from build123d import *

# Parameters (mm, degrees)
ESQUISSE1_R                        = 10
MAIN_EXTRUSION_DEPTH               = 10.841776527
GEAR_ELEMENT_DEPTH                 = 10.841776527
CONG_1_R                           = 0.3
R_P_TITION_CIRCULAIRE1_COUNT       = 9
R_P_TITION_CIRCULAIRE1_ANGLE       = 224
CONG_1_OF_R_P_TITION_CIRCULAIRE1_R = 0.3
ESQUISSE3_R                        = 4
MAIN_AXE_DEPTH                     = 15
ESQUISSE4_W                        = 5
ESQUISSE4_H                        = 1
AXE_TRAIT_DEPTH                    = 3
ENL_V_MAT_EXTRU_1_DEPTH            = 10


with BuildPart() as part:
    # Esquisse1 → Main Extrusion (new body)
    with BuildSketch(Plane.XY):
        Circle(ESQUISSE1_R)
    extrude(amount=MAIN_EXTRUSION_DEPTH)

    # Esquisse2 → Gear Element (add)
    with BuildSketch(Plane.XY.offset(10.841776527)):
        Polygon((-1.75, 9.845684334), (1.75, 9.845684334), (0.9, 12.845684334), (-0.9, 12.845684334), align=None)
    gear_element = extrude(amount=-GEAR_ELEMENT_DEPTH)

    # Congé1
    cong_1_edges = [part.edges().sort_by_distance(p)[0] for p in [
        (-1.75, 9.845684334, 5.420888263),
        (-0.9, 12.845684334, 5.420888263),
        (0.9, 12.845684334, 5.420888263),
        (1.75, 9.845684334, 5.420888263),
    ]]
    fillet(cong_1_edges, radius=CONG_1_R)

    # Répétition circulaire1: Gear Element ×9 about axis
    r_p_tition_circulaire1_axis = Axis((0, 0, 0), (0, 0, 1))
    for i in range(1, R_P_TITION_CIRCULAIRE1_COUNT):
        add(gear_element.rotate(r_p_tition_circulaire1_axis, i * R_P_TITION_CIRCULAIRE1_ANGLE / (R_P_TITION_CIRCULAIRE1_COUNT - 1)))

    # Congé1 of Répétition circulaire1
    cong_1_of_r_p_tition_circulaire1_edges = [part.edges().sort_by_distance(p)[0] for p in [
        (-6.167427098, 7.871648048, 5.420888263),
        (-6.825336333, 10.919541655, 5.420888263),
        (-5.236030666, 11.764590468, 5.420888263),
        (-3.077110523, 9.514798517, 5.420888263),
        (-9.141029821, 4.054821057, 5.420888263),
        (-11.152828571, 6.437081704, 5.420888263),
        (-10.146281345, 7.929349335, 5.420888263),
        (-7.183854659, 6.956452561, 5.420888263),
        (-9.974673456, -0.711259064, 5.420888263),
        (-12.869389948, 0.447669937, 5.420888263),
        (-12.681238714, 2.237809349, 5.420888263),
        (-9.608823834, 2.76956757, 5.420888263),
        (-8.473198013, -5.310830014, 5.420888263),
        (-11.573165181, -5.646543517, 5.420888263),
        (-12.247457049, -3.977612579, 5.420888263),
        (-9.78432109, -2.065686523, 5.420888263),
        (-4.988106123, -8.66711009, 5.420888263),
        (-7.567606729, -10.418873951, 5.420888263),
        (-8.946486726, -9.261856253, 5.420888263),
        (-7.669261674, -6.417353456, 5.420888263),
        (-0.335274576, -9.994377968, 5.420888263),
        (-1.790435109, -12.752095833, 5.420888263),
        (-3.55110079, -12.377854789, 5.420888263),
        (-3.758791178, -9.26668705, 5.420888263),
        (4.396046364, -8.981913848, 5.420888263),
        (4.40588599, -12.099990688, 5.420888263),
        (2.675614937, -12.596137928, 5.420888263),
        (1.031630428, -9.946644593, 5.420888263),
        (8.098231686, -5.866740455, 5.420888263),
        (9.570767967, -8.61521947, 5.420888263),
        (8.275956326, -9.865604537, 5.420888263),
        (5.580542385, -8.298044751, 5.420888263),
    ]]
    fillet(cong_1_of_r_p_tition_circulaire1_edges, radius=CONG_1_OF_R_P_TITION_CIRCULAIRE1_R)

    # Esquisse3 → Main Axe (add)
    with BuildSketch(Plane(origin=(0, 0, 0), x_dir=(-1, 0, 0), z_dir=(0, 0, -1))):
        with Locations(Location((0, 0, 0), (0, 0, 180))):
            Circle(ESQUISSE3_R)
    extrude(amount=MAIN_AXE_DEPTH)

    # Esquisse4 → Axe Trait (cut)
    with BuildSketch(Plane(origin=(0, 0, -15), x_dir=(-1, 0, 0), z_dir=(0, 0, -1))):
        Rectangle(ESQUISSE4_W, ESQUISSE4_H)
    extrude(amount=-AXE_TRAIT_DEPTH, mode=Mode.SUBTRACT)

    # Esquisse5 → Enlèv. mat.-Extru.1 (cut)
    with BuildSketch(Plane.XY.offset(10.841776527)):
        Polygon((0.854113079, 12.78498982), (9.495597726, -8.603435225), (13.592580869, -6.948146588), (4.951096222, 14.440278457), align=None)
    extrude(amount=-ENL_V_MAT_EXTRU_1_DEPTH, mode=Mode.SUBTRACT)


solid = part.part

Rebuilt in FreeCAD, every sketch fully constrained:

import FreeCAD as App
import Part
import Sketcher
Q = App.Units.Quantity


def edges_at(feature, points):
    """Names of the edges that pass closest to the given points."""
    edges = feature.Shape.Edges
    near = lambda p: min(range(len(edges)), key=lambda i: edges[i].distToShape(Part.Vertex(*p))[0])
    return sorted({f"Edge{near(p) + 1}" for p in points})


def add_polygon(sketch, points):
    """Adds a closed chain of lines whose ends are joined by coincident constraints."""
    first, n = sketch.GeometryCount, len(points)
    for a, b in zip(points, points[1:] + points[:1]):
        sketch.addGeometry(Part.LineSegment(App.Vector(*a, 0), App.Vector(*b, 0)), False)
    for i in range(n):
        sketch.addConstraint(Sketcher.Constraint("Coincident", first + i, 2, first + (i + 1) % n, 1))

doc = App.newDocument("Part")
body = doc.addObject("PartDesign::Body", "Body")

# Sketch on XY plane
sketch1 = body.newObject("Sketcher::SketchObject", "Sketch")
sketch1.AttachmentSupport = (doc.getObject("XY_Plane"), [""])
sketch1.MapMode = "FlatFace"
sketch1.addGeometry(Part.Circle(App.Vector(0, 0, 0), App.Vector(0, 0, 1), 10), False)
sketch1.addConstraint([
    Sketcher.Constraint("Coincident", 0, 3, -1, 1),
    Sketcher.Constraint("Diameter", 0, Q("20 mm")),
])
pad1 = body.newObject("PartDesign::Pad", "Pad")
pad1.Profile = sketch1
pad1.Length = 10.841777

# Sketch on XY plane
sketch2 = body.newObject("Sketcher::SketchObject", "Sketch001")
sketch2.AttachmentSupport = (doc.getObject("XY_Plane"), [""])
sketch2.MapMode = "FlatFace"
sketch2.AttachmentOffset = App.Placement(App.Vector(0, 0, 10.841777), App.Rotation())
add_polygon(sketch2, [(-1.8, 9.8), (1.8, 9.8), (0.9, 12.8), (-0.9, 12.8)])  # lines 0-3
sketch2.addConstraint([
    Sketcher.Constraint("Horizontal", 0),
    Sketcher.Constraint("Horizontal", 2),
    Sketcher.Constraint("Equal", 1, 3),
    Sketcher.Constraint("DistanceX", 0, 1, 0, 2, Q("3.5 mm")),
    Sketcher.Constraint("DistanceX", 2, 2, 2, 1, Q("1.8 mm")),
    Sketcher.Constraint("DistanceY", 0, 2, 1, 2, Q("3 mm")),
    Sketcher.Constraint("DistanceX", -1, 1, 1, 2, Q("0.9 mm")),
    Sketcher.Constraint("DistanceY", -1, 1, 0, 2, Q("9.845684 mm")),
])
pad2 = body.newObject("PartDesign::Pad", "Pad001")
pad2.Profile = sketch2
pad2.Length = 10.841777
pad2.Reversed = True
doc.recompute()

fillet = body.newObject("PartDesign::Fillet", "Fillet")
fillet.Base = (pad2, edges_at(pad2, [
    (-1.75, 9.846, 5.421),
    (-0.9, 12.846, 5.421),
    (0.9, 12.846, 5.421),
    (1.75, 9.846, 5.421),
]))
fillet.Radius = 0.3
doc.recompute()

polarpattern = body.newObject("PartDesign::PolarPattern", "PolarPattern")
polarpattern.Originals = [pad2]
polarpattern.Axis = (doc.getObject("Z_Axis"), [""])
polarpattern.Angle = 224
polarpattern.Occurrences = 9
body.Tip = polarpattern
doc.recompute()

fillet2 = body.newObject("PartDesign::Fillet", "Fillet001")
fillet2.Base = (polarpattern, edges_at(polarpattern, [
    (-6.167, 7.872, 5.421),
    (-6.825, 10.92, 5.421),
    (-5.236, 11.765, 5.421),
    (-3.077, 9.515, 5.421),
    (-9.141, 4.055, 5.421),
    (-11.153, 6.437, 5.421),
    (-10.146, 7.929, 5.421),
    (-7.184, 6.956, 5.421),
    (-9.975, -0.711, 5.421),
    (-12.869, 0.448, 5.421),
    (-12.681, 2.238, 5.421),
    (-9.609, 2.77, 5.421),
    (-8.473, -5.311, 5.421),
    (-11.573, -5.647, 5.421),
    (-12.247, -3.978, 5.421),
    (-9.784, -2.066, 5.421),
    (-4.988, -8.667, 5.421),
    (-7.568, -10.419, 5.421),
    (-8.946, -9.262, 5.421),
    (-7.669, -6.417, 5.421),
    (-0.335, -9.994, 5.421),
    (-1.79, -12.752, 5.421),
    (-3.551, -12.378, 5.421),
    (-3.759, -9.267, 5.421),
    (4.396, -8.982, 5.421),
    (4.406, -12.1, 5.421),
    (2.676, -12.596, 5.421),
    (1.032, -9.947, 5.421),
    (8.098, -5.867, 5.421),
    (9.571, -8.615, 5.421),
    (8.276, -9.866, 5.421),
    (5.581, -8.298, 5.421),
]))
fillet2.Radius = 0.3

# Sketch on XY plane
sketch3 = body.newObject("Sketcher::SketchObject", "Sketch002")
sketch3.AttachmentSupport = (doc.getObject("XY_Plane"), [""])
sketch3.MapMode = "FlatFace"
sketch3.addGeometry(Part.Circle(App.Vector(0, 0, 0), App.Vector(0, 0, 1), 4), False)
sketch3.addConstraint([
    Sketcher.Constraint("Coincident", 0, 3, -1, 1),
    Sketcher.Constraint("Diameter", 0, Q("8 mm")),
])
pad3 = body.newObject("PartDesign::Pad", "Pad002")
pad3.Profile = sketch3
pad3.Length = 15
pad3.Reversed = True

# Sketch on XY plane
sketch4 = body.newObject("Sketcher::SketchObject", "Sketch003")
sketch4.AttachmentSupport = (doc.getObject("XY_Plane"), [""])
sketch4.MapMode = "FlatFace"
sketch4.AttachmentOffset = App.Placement(App.Vector(0, 0, -15), App.Rotation())
add_polygon(sketch4, [(2.5, 0.5), (2.5, -0.5), (-2.5, -0.5), (-2.5, 0.5)])  # lines 0-3
sketch4.addConstraint([
    Sketcher.Constraint("Vertical", 0),
    Sketcher.Constraint("Horizontal", 1),
    Sketcher.Constraint("Vertical", 2),
    Sketcher.Constraint("Horizontal", 3),
    Sketcher.Constraint("Symmetric", 0, 2, 2, 2, -1, 1),
    Sketcher.Constraint("DistanceX", 1, 2, 1, 1, Q("5 mm")),
    Sketcher.Constraint("DistanceY", 0, 2, 0, 1, Q("1 mm")),
])
pocket1 = body.newObject("PartDesign::Pocket", "Pocket")
pocket1.Profile = sketch4
pocket1.Length = 3
pocket1.Reversed = True

# Sketch on XY plane
sketch5 = body.newObject("Sketcher::SketchObject", "Sketch004")
sketch5.AttachmentSupport = (doc.getObject("XY_Plane"), [""])
sketch5.MapMode = "FlatFace"
sketch5.AttachmentOffset = App.Placement(App.Vector(0, 0, 10.841777), App.Rotation())
add_polygon(sketch5, [(0.9, 12.8), (9.5, -8.6), (13.6, -6.9), (5, 14.4)])  # lines 0-3
sketch5.addConstraint([
    Sketcher.Constraint("Perpendicular", 0, 1),
    Sketcher.Constraint("Perpendicular", 1, 2),
    Sketcher.Constraint("Perpendicular", 2, 3),
    Sketcher.Constraint("Angle", 0, Q("-68 deg")),
    Sketcher.Constraint("DistanceX", 2, 2, 0, 2, Q("4.544502 mm")),
    Sketcher.Constraint("Distance", 0, Q("23.06816 mm")),
    Sketcher.Constraint("DistanceX", -1, 1, 1, 2, Q("13.592581 mm")),
    Sketcher.Constraint("DistanceY", -1, 1, 2, 2, Q("14.440278 mm")),
])
pocket2 = body.newObject("PartDesign::Pocket", "Pocket001")
pocket2.Profile = sketch5
pocket2.Length = 10

doc.recompute()
